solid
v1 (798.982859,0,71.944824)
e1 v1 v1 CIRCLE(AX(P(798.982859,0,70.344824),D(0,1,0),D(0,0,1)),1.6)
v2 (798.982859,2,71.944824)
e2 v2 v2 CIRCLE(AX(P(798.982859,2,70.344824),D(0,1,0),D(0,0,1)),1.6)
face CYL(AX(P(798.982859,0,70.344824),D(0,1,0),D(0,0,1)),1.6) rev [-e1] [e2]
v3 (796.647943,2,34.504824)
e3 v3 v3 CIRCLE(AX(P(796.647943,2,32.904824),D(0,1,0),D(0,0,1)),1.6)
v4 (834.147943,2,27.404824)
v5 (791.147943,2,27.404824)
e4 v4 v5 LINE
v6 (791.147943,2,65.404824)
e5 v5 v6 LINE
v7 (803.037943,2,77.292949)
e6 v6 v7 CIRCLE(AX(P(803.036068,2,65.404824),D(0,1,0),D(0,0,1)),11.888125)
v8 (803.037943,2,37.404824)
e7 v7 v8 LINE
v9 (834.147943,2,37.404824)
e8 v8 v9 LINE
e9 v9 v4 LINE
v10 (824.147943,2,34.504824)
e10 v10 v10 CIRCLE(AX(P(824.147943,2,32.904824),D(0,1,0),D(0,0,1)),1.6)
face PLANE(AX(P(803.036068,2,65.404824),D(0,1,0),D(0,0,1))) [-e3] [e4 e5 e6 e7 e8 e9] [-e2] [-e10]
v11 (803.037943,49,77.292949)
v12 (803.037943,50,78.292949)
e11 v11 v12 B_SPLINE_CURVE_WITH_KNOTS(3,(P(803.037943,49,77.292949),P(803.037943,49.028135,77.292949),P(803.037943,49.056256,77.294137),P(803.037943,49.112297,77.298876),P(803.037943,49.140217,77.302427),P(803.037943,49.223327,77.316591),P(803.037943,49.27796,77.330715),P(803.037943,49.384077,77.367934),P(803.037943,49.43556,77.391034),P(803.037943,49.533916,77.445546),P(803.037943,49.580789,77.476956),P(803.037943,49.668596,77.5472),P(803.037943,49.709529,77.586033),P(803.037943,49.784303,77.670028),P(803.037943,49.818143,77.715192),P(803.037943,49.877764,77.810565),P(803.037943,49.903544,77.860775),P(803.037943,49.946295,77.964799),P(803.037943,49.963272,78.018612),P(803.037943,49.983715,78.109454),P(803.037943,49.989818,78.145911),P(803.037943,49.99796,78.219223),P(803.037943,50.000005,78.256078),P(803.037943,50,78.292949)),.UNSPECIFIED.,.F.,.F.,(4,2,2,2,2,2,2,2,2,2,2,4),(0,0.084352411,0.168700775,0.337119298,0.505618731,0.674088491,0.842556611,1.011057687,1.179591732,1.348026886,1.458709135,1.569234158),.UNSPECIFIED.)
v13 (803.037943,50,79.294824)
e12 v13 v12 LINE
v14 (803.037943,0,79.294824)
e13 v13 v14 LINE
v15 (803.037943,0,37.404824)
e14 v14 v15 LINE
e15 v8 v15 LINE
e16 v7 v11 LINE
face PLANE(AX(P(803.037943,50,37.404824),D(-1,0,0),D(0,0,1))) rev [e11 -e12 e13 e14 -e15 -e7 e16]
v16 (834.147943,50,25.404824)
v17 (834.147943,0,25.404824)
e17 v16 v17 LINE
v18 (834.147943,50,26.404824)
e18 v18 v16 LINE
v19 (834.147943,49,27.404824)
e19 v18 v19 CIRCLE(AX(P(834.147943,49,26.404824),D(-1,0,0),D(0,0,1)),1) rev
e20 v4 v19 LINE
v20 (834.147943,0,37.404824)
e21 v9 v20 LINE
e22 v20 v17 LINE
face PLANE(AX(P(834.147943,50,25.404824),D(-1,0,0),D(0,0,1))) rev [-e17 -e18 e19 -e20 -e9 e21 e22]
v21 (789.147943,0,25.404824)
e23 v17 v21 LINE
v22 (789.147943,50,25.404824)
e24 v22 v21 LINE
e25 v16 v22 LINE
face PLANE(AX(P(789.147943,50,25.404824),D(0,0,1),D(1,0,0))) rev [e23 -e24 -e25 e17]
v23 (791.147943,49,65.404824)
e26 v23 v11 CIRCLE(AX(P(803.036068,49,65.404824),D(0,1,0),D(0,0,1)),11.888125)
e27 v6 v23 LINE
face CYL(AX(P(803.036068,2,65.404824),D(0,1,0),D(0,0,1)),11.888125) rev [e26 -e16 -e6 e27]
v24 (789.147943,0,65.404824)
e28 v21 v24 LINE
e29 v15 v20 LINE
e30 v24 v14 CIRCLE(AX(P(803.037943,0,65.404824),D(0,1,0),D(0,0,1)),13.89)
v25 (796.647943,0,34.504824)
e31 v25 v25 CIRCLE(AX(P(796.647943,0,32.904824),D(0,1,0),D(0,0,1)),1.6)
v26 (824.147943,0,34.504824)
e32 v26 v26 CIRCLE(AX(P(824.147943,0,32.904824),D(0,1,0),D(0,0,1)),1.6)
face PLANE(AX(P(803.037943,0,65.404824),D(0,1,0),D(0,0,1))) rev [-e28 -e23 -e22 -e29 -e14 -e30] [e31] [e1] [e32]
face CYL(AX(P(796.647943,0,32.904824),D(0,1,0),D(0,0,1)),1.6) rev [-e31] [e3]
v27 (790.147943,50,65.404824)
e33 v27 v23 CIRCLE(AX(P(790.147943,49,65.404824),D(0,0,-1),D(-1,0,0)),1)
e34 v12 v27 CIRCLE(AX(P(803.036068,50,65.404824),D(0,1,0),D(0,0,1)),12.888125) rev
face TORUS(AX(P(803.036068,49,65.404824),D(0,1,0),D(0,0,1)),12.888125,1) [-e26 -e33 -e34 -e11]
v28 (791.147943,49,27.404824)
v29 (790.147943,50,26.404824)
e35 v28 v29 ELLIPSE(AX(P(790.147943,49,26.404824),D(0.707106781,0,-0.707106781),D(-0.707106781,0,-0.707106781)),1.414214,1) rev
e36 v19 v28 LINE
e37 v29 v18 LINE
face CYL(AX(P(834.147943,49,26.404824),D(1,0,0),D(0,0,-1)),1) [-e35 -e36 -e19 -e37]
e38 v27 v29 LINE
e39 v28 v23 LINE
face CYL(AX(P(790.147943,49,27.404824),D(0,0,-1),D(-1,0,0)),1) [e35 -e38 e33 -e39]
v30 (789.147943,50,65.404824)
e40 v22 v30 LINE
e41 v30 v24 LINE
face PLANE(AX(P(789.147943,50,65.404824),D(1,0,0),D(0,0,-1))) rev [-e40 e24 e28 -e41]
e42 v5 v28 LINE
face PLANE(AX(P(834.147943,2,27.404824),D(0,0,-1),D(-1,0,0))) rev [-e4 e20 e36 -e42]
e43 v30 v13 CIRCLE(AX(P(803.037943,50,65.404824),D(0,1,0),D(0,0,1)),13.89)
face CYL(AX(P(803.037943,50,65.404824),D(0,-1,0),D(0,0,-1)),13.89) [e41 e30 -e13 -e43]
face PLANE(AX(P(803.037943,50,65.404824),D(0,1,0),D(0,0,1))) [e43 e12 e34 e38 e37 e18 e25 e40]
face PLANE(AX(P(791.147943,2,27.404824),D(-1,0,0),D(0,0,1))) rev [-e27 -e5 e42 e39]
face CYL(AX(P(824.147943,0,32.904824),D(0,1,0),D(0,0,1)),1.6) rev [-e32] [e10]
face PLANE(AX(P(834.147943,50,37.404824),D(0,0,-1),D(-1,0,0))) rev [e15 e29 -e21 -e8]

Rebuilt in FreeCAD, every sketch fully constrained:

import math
import FreeCAD as App
import Part
import Sketcher


def edges_at(feature, points):
    """Names of the edges that pass closest to the given points."""
    edges = feature.Shape.Edges
    near = lambda p: min(range(len(edges)), key=lambda i: edges[i].distToShape(Part.Vertex(*p))[0])
    return sorted({f"Edge{near(p) + 1}" for p in points})

doc = App.newDocument("Part")
params = doc.addObject("Spreadsheet::Sheet", "Params")
for row, (alias, value) in enumerate([
    ("sketch1_width", "45 mm"),
    ("sketch1_height", "40 mm"),
    ("sketch1_height2", "12 mm"),
    ("sketch1_radius", "13.89 mm"),
    ("sketch1_width2", "31.11 mm"),
    ("pad1_length", "50 mm"),
    ("sketch2_width", "43 mm"),
    ("sketch2_height", "38 mm"),
    ("pocket1_length", "48 mm"),
    ("sketch3_diameter", "3.2 mm"),
    ("fillet_radius", "1 mm"),
], start=1):
    params.set(f"A{row}", alias)
    params.set(f"B{row}", "=" + value)
    params.setAlias(f"B{row}", alias)

body = doc.addObject("PartDesign::Body", "Body")

sketch1 = doc.addObject("Sketcher::SketchObject", "Sketch")
body.addObject(sketch1)
sketch1.AttachmentSupport = (doc.XZ_Plane, [""])
sketch1.MapMode = "FlatFace"
sketch1.addGeometry(Part.LineSegment(App.Vector(789, 25, 0), App.Vector(789, 65, 0)), False)
sketch1.addGeometry(Part.ArcOfCircle(Part.Circle(App.Vector(803, 65, 0), App.Vector(0, 0, 1), 14), math.radians(90), math.radians(180)), False)
sketch1.addGeometry(Part.LineSegment(App.Vector(803, 79, 0), App.Vector(803, 37, 0)), False)
sketch1.addGeometry(Part.LineSegment(App.Vector(803, 37, 0), App.Vector(834, 37, 0)), False)
sketch1.addGeometry(Part.LineSegment(App.Vector(834, 37, 0), App.Vector(834, 25, 0)), False)
sketch1.addGeometry(Part.LineSegment(App.Vector(834, 25, 0), App.Vector(789, 25, 0)), False)
sketch1.addConstraint(Sketcher.Constraint("Tangent", 0, 2, 1, 2))
sketch1.addConstraint(Sketcher.Constraint("Coincident", 1, 1, 2, 1))
sketch1.addConstraint(Sketcher.Constraint("Coincident", 2, 2, 3, 1))
sketch1.addConstraint(Sketcher.Constraint("Coincident", 3, 2, 4, 1))
sketch1.addConstraint(Sketcher.Constraint("Coincident", 4, 2, 5, 1))
sketch1.addConstraint(Sketcher.Constraint("Coincident", 5, 2, 0, 1))
sketch1.addConstraint(Sketcher.Constraint("Vertical", 0))
sketch1.addConstraint(Sketcher.Constraint("Vertical", 2))
sketch1.addConstraint(Sketcher.Constraint("Horizontal", 3))
sketch1.addConstraint(Sketcher.Constraint("Vertical", 4))
sketch1.addConstraint(Sketcher.Constraint("Horizontal", 5))
sketch1.addConstraint(Sketcher.Constraint("DistanceX", 5, 2, 5, 1, 45.0))
sketch1.addConstraint(Sketcher.Constraint("DistanceY", 0, 1, 0, 2, 40.0))
sketch1.addConstraint(Sketcher.Constraint("DistanceY", 4, 2, 4, 1, 12.0))
sketch1.addConstraint(Sketcher.Constraint("Radius", 1, 13.89))
sketch1.addConstraint(Sketcher.Constraint("DistanceX", 3, 1, 3, 2, 31.11))
sketch1.addConstraint(Sketcher.Constraint("DistanceX", -1, 1, 1, 3, 803.037943))
sketch1.addConstraint(Sketcher.Constraint("DistanceY", -1, 1, 1, 3, 65.404824))
sketch1.setExpression("Constraints[11]", "Params.sketch1_width")
sketch1.setExpression("Constraints[12]", "Params.sketch1_height")
sketch1.setExpression("Constraints[13]", "Params.sketch1_height2")
sketch1.setExpression("Constraints[14]", "Params.sketch1_radius")
sketch1.setExpression("Constraints[15]", "Params.sketch1_width2")
pad1 = doc.addObject("PartDesign::Pad", "Pad")
body.addObject(pad1)
pad1.Profile = sketch1
pad1.setExpression("Length", "Params.pad1_length")
pad1.Reversed = True

sketch2 = doc.addObject("Sketcher::SketchObject", "Sketch001")
body.addObject(sketch2)
sketch2.AttachmentSupport = (doc.XZ_Plane, [""])
sketch2.MapMode = "FlatFace"
sketch2.AttachmentOffset = App.Placement(App.Vector(0, 0, -50), App.Rotation())
sketch2.addGeometry(Part.LineSegment(App.Vector(834, 27, 0), App.Vector(791, 27, 0)), False)
sketch2.addGeometry(Part.LineSegment(App.Vector(791, 27, 0), App.Vector(791, 65, 0)), False)
sketch2.addGeometry(Part.ArcOfCircle(Part.Circle(App.Vector(803, 65, 0), App.Vector(0, 0, 1), 12), math.radians(90), math.radians(180)), False)
sketch2.addGeometry(Part.LineSegment(App.Vector(803, 77, 0), App.Vector(834, 63, 0)), False)
sketch2.addGeometry(Part.LineSegment(App.Vector(834, 63, 0), App.Vector(834, 27, 0)), False)
sketch2.addConstraint(Sketcher.Constraint("Coincident", 0, 2, 1, 1))
sketch2.addConstraint(Sketcher.Constraint("Tangent", 1, 2, 2, 2))
sketch2.addConstraint(Sketcher.Constraint("Coincident", 2, 1, 3, 1))
sketch2.addConstraint(Sketcher.Constraint("Coincident", 3, 2, 4, 1))
sketch2.addConstraint(Sketcher.Constraint("Coincident", 4, 2, 0, 1))
sketch2.addConstraint(Sketcher.Constraint("Horizontal", 0))
sketch2.addConstraint(Sketcher.Constraint("Vertical", 1))
sketch2.addConstraint(Sketcher.Constraint("Vertical", 4))
sketch2.addConstraint(Sketcher.Constraint("DistanceX", 0, 2, 0, 1, 43.0))
sketch2.addConstraint(Sketcher.Constraint("DistanceY", 1, 1, 1, 2, 38.0))
sketch2.addConstraint(Sketcher.Constraint("DistanceX", 1, 2, 2, 1, 11.89))
sketch2.addConstraint(Sketcher.Constraint("Radius", 2, 11.888125))
sketch2.addConstraint(Sketcher.Constraint("DistanceY", 4, 2, 4, 1, 35.871588))
sketch2.addConstraint(Sketcher.Constraint("DistanceY", -1, 1, 2, 1, 77.292949))
sketch2.addConstraint(Sketcher.Constraint("DistanceX", -1, 1, 2, 3, 803.036068))
sketch2.setExpression("Constraints[8]", "Params.sketch2_width")
sketch2.setExpression("Constraints[9]", "Params.sketch2_height")
pocket1 = doc.addObject("PartDesign::Pocket", "Pocket")
body.addObject(pocket1)
pocket1.Profile = sketch2
pocket1.setExpression("Length", "Params.pocket1_length")
pocket1.Reversed = True

sketch3 = doc.addObject("Sketcher::SketchObject", "Sketch002")
body.addObject(sketch3)
sketch3.AttachmentSupport = (doc.XZ_Plane, [""])
sketch3.MapMode = "FlatFace"
sketch3.AttachmentOffset = App.Placement(App.Vector(0, 0, -2), App.Rotation())
sketch3.addGeometry(Part.Circle(App.Vector(824.1, 32.9, 0), App.Vector(0, 0, 1), 1.6), False)
sketch3.addGeometry(Part.Circle(App.Vector(796.6, 32.9, 0), App.Vector(0, 0, 1), 1.6), False)
sketch3.addGeometry(Part.Circle(App.Vector(799, 70.3, 0), App.Vector(0, 0, 1), 1.6), False)
sketch3.addConstraint(Sketcher.Constraint("Equal", 0, 1))
sketch3.addConstraint(Sketcher.Constraint("Equal", 1, 2))
sketch3.addConstraint(Sketcher.Constraint("Horizontal", 0, 3, 1, 3))
sketch3.addConstraint(Sketcher.Constraint("Diameter", 0, 3.2))
sketch3.addConstraint(Sketcher.Constraint("DistanceX", 1, 3, 0, 3, 27.5))
sketch3.addConstraint(Sketcher.Constraint("DistanceY", 1, 3, 2, 3, 37.44))
sketch3.addConstraint(Sketcher.Constraint("DistanceX", -1, 1, 2, 3, 798.982859))
sketch3.addConstraint(Sketcher.Constraint("DistanceX", -1, 1, 0, 3, 824.147943))
sketch3.addConstraint(Sketcher.Constraint("DistanceY", -1, 1, 0, 3, 32.904824))
sketch3.setExpression("Constraints[3]", "Params.sketch3_diameter")
pocket2 = doc.addObject("PartDesign::Pocket", "Pocket001")
body.addObject(pocket2)
pocket2.Profile = sketch3
pocket2.Type = "ThroughAll"
pocket2.Reversed = True
doc.recompute()

fillet = doc.addObject("PartDesign::Fillet", "Fillet")
body.addObject(fillet)
fillet.Base = (pocket2, edges_at(pocket2, [(794.631, 50, 73.812), (812.648, 50, 27.405), (791.148, 50, 46.405)]))
fillet.setExpression("Radius", "Params.fillet_radius")

doc.recompute()
